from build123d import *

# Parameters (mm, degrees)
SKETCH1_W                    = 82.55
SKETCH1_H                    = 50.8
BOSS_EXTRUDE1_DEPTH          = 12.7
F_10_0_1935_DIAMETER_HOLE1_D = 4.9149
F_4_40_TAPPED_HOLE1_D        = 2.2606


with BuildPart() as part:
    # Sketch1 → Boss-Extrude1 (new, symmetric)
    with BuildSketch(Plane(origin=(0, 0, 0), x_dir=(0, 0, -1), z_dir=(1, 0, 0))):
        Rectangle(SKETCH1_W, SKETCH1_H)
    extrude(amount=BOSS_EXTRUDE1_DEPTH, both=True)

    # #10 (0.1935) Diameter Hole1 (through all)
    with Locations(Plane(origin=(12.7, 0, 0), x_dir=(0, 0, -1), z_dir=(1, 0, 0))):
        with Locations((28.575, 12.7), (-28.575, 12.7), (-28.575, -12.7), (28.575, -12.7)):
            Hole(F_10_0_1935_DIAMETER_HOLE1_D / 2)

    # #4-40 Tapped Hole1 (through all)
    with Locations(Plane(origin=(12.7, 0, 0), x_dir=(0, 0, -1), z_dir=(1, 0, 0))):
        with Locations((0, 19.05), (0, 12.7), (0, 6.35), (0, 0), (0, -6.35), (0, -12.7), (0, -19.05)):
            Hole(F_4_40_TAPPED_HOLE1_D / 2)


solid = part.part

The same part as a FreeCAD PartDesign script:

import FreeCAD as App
import Part
import Sketcher

V = App.Vector
Q = App.Units.Quantity


def add_polygon(sketch, points):
    """Adds a closed chain of lines whose ends are joined by coincident constraints."""
    first, n = sketch.GeometryCount, len(points)
    for a, b in zip(points, points[1:] + points[:1]):
        sketch.addGeometry(Part.LineSegment(App.Vector(*a, 0), App.Vector(*b, 0)), False)
    for i in range(n):
        sketch.addConstraint(Sketcher.Constraint("Coincident", first + i, 2, first + (i + 1) % n, 1))

doc = App.newDocument("Part")
body = doc.addObject("PartDesign::Body", "Body")

# Sketch on YZ plane
sketch1 = body.newObject("Sketcher::SketchObject", "Sketch")
sketch1.AttachmentSupport = (doc.getObject("YZ_Plane"), [""])
sketch1.MapMode = "FlatFace"
add_polygon(sketch1, [(25, 41), (-25, 41), (-25, -41), (25, -41)])  # lines 0-3
sketch1.addConstraint(Sketcher.Constraint("Horizontal", 0))
sketch1.addConstraint(Sketcher.Constraint("Vertical", 1))
sketch1.addConstraint(Sketcher.Constraint("Horizontal", 2))
sketch1.addConstraint(Sketcher.Constraint("Vertical", 3))
sketch1.addConstraint(Sketcher.Constraint("Symmetric", 0, 2, 2, 2, -1, 1))
sketch1.addConstraint(Sketcher.Constraint("DistanceX", 0, 2, 0, 1, Q("2 in")))
sketch1.addConstraint(Sketcher.Constraint("DistanceY", 1, 2, 1, 1, Q("3.25 in")))
pad1 = body.newObject("PartDesign::Pad", "Pad")
pad1.Profile = sketch1
pad1.Length = Q("1 in")
pad1.Midplane = True

# Sketch on YZ plane
sketch2 = body.newObject("Sketcher::SketchObject", "Sketch001")
sketch2.AttachmentSupport = (doc.getObject("YZ_Plane"), [""])
sketch2.MapMode = "FlatFace"
sketch2.AttachmentOffset = App.Placement(V(0, 0, 0.5 * 25.4), App.Rotation())
sketch2.addGeometry(Part.Circle(V(12.7, -28.6, 0), V(0, 0, 1), 2.5), False)
sketch2.addGeometry(Part.Circle(V(12.7, 28.6, 0), V(0, 0, 1), 2.5), False)
sketch2.addGeometry(Part.Circle(V(-12.7, 28.6, 0), V(0, 0, 1), 2.5), False)
sketch2.addGeometry(Part.Circle(V(-12.7, -28.6, 0), V(0, 0, 1), 2.5), False)
sketch2.addConstraint(Sketcher.Constraint("Equal", 0, 1))
sketch2.addConstraint(Sketcher.Constraint("Equal", 1, 2))
sketch2.addConstraint(Sketcher.Constraint("Equal", 2, 3))
sketch2.addConstraint(Sketcher.Constraint("Symmetric", 0, 3, 2, 3, -1, 1))
sketch2.addConstraint(Sketcher.Constraint("Symmetric", 1, 3, 3, 3, -1, 1))
sketch2.addConstraint(Sketcher.Constraint("Symmetric", 1, 3, 2, 3, -2))
sketch2.addConstraint(Sketcher.Constraint("DistanceX", 2, 3, 1, 3, Q("1 in")))
sketch2.addConstraint(Sketcher.Constraint("Diameter", 0, Q("0.1935 in")))
sketch2.addConstraint(Sketcher.Constraint("DistanceY", 0, 3, 1, 3, Q("2.25 in")))
doc.recompute()
hole = body.newObject("PartDesign::Hole", "Hole")
hole.Profile = sketch2
hole.ThreadType = "None"
hole.Diameter = Q("0.1935 in")
hole.DepthType = "ThroughAll"

# Sketch on YZ plane
sketch3 = body.newObject("Sketcher::SketchObject", "Sketch002")
sketch3.AttachmentSupport = (doc.getObject("YZ_Plane"), [""])
sketch3.MapMode = "FlatFace"
sketch3.AttachmentOffset = App.Placement(V(0, 0, 0.5 * 25.4), App.Rotation())
sketch3.addGeometry(Part.Circle(V(19.1, 0, 0), V(0, 0, 1), 1.1), False)
sketch3.addGeometry(Part.Circle(V(12.7, 0, 0), V(0, 0, 1), 1.1), False)
sketch3.addGeometry(Part.Circle(V(6.3, 0, 0), V(0, 0, 1), 1.1), False)
sketch3.addGeometry(Part.Circle(V(0, 0, 0), V(0, 0, 1), 1.1), False)
sketch3.addGeometry(Part.Circle(V(-6.3, 0, 0), V(0, 0, 1), 1.1), False)
sketch3.addGeometry(Part.Circle(V(-12.7, 0, 0), V(0, 0, 1), 1.1), False)
sketch3.addGeometry(Part.Circle(V(-19.1, 0, 0), V(0, 0, 1), 1.1), False)
sketch3.addConstraint(Sketcher.Constraint("Coincident", 3, 3, -1, 1))
sketch3.addConstraint(Sketcher.Constraint("Equal", 0, 1))
sketch3.addConstraint(Sketcher.Constraint("Equal", 1, 2))
sketch3.addConstraint(Sketcher.Constraint("Equal", 2, 3))
sketch3.addConstraint(Sketcher.Constraint("Equal", 3, 4))
sketch3.addConstraint(Sketcher.Constraint("Equal", 4, 5))
sketch3.addConstraint(Sketcher.Constraint("Equal", 5, 6))
sketch3.addConstraint(Sketcher.Constraint("Symmetric", 2, 3, 4, 3, -1, 1))
sketch3.addConstraint(Sketcher.Constraint("Symmetric", 1, 3, 5, 3, -1, 1))
sketch3.addConstraint(Sketcher.Constraint("Symmetric", 0, 3, 6, 3, -1, 1))
sketch3.addConstraint(Sketcher.Constraint("PointOnObject", 0, 3, -1))
sketch3.addConstraint(Sketcher.Constraint("PointOnObject", 1, 3, -1))
sketch3.addConstraint(Sketcher.Constraint("PointOnObject", 2, 3, -1))
sketch3.addConstraint(Sketcher.Constraint("Diameter", 0, Q("0.089 in")))
sketch3.addConstraint(Sketcher.Constraint("DistanceX", 4, 3, 0, 3, Q("1 in")))
sketch3.addConstraint(Sketcher.Constraint("DistanceX", 5, 3, 1, 3, Q("1 in")))
sketch3.addConstraint(Sketcher.Constraint("DistanceX", 2, 3, 0, 3, Q("0.5 in")))
doc.recompute()
hole2 = body.newObject("PartDesign::Hole", "Hole001")
hole2.Profile = sketch3
hole2.ThreadType = "None"
hole2.Diameter = Q("0.089 in")
hole2.DepthType = "ThroughAll"

doc.recompute()
